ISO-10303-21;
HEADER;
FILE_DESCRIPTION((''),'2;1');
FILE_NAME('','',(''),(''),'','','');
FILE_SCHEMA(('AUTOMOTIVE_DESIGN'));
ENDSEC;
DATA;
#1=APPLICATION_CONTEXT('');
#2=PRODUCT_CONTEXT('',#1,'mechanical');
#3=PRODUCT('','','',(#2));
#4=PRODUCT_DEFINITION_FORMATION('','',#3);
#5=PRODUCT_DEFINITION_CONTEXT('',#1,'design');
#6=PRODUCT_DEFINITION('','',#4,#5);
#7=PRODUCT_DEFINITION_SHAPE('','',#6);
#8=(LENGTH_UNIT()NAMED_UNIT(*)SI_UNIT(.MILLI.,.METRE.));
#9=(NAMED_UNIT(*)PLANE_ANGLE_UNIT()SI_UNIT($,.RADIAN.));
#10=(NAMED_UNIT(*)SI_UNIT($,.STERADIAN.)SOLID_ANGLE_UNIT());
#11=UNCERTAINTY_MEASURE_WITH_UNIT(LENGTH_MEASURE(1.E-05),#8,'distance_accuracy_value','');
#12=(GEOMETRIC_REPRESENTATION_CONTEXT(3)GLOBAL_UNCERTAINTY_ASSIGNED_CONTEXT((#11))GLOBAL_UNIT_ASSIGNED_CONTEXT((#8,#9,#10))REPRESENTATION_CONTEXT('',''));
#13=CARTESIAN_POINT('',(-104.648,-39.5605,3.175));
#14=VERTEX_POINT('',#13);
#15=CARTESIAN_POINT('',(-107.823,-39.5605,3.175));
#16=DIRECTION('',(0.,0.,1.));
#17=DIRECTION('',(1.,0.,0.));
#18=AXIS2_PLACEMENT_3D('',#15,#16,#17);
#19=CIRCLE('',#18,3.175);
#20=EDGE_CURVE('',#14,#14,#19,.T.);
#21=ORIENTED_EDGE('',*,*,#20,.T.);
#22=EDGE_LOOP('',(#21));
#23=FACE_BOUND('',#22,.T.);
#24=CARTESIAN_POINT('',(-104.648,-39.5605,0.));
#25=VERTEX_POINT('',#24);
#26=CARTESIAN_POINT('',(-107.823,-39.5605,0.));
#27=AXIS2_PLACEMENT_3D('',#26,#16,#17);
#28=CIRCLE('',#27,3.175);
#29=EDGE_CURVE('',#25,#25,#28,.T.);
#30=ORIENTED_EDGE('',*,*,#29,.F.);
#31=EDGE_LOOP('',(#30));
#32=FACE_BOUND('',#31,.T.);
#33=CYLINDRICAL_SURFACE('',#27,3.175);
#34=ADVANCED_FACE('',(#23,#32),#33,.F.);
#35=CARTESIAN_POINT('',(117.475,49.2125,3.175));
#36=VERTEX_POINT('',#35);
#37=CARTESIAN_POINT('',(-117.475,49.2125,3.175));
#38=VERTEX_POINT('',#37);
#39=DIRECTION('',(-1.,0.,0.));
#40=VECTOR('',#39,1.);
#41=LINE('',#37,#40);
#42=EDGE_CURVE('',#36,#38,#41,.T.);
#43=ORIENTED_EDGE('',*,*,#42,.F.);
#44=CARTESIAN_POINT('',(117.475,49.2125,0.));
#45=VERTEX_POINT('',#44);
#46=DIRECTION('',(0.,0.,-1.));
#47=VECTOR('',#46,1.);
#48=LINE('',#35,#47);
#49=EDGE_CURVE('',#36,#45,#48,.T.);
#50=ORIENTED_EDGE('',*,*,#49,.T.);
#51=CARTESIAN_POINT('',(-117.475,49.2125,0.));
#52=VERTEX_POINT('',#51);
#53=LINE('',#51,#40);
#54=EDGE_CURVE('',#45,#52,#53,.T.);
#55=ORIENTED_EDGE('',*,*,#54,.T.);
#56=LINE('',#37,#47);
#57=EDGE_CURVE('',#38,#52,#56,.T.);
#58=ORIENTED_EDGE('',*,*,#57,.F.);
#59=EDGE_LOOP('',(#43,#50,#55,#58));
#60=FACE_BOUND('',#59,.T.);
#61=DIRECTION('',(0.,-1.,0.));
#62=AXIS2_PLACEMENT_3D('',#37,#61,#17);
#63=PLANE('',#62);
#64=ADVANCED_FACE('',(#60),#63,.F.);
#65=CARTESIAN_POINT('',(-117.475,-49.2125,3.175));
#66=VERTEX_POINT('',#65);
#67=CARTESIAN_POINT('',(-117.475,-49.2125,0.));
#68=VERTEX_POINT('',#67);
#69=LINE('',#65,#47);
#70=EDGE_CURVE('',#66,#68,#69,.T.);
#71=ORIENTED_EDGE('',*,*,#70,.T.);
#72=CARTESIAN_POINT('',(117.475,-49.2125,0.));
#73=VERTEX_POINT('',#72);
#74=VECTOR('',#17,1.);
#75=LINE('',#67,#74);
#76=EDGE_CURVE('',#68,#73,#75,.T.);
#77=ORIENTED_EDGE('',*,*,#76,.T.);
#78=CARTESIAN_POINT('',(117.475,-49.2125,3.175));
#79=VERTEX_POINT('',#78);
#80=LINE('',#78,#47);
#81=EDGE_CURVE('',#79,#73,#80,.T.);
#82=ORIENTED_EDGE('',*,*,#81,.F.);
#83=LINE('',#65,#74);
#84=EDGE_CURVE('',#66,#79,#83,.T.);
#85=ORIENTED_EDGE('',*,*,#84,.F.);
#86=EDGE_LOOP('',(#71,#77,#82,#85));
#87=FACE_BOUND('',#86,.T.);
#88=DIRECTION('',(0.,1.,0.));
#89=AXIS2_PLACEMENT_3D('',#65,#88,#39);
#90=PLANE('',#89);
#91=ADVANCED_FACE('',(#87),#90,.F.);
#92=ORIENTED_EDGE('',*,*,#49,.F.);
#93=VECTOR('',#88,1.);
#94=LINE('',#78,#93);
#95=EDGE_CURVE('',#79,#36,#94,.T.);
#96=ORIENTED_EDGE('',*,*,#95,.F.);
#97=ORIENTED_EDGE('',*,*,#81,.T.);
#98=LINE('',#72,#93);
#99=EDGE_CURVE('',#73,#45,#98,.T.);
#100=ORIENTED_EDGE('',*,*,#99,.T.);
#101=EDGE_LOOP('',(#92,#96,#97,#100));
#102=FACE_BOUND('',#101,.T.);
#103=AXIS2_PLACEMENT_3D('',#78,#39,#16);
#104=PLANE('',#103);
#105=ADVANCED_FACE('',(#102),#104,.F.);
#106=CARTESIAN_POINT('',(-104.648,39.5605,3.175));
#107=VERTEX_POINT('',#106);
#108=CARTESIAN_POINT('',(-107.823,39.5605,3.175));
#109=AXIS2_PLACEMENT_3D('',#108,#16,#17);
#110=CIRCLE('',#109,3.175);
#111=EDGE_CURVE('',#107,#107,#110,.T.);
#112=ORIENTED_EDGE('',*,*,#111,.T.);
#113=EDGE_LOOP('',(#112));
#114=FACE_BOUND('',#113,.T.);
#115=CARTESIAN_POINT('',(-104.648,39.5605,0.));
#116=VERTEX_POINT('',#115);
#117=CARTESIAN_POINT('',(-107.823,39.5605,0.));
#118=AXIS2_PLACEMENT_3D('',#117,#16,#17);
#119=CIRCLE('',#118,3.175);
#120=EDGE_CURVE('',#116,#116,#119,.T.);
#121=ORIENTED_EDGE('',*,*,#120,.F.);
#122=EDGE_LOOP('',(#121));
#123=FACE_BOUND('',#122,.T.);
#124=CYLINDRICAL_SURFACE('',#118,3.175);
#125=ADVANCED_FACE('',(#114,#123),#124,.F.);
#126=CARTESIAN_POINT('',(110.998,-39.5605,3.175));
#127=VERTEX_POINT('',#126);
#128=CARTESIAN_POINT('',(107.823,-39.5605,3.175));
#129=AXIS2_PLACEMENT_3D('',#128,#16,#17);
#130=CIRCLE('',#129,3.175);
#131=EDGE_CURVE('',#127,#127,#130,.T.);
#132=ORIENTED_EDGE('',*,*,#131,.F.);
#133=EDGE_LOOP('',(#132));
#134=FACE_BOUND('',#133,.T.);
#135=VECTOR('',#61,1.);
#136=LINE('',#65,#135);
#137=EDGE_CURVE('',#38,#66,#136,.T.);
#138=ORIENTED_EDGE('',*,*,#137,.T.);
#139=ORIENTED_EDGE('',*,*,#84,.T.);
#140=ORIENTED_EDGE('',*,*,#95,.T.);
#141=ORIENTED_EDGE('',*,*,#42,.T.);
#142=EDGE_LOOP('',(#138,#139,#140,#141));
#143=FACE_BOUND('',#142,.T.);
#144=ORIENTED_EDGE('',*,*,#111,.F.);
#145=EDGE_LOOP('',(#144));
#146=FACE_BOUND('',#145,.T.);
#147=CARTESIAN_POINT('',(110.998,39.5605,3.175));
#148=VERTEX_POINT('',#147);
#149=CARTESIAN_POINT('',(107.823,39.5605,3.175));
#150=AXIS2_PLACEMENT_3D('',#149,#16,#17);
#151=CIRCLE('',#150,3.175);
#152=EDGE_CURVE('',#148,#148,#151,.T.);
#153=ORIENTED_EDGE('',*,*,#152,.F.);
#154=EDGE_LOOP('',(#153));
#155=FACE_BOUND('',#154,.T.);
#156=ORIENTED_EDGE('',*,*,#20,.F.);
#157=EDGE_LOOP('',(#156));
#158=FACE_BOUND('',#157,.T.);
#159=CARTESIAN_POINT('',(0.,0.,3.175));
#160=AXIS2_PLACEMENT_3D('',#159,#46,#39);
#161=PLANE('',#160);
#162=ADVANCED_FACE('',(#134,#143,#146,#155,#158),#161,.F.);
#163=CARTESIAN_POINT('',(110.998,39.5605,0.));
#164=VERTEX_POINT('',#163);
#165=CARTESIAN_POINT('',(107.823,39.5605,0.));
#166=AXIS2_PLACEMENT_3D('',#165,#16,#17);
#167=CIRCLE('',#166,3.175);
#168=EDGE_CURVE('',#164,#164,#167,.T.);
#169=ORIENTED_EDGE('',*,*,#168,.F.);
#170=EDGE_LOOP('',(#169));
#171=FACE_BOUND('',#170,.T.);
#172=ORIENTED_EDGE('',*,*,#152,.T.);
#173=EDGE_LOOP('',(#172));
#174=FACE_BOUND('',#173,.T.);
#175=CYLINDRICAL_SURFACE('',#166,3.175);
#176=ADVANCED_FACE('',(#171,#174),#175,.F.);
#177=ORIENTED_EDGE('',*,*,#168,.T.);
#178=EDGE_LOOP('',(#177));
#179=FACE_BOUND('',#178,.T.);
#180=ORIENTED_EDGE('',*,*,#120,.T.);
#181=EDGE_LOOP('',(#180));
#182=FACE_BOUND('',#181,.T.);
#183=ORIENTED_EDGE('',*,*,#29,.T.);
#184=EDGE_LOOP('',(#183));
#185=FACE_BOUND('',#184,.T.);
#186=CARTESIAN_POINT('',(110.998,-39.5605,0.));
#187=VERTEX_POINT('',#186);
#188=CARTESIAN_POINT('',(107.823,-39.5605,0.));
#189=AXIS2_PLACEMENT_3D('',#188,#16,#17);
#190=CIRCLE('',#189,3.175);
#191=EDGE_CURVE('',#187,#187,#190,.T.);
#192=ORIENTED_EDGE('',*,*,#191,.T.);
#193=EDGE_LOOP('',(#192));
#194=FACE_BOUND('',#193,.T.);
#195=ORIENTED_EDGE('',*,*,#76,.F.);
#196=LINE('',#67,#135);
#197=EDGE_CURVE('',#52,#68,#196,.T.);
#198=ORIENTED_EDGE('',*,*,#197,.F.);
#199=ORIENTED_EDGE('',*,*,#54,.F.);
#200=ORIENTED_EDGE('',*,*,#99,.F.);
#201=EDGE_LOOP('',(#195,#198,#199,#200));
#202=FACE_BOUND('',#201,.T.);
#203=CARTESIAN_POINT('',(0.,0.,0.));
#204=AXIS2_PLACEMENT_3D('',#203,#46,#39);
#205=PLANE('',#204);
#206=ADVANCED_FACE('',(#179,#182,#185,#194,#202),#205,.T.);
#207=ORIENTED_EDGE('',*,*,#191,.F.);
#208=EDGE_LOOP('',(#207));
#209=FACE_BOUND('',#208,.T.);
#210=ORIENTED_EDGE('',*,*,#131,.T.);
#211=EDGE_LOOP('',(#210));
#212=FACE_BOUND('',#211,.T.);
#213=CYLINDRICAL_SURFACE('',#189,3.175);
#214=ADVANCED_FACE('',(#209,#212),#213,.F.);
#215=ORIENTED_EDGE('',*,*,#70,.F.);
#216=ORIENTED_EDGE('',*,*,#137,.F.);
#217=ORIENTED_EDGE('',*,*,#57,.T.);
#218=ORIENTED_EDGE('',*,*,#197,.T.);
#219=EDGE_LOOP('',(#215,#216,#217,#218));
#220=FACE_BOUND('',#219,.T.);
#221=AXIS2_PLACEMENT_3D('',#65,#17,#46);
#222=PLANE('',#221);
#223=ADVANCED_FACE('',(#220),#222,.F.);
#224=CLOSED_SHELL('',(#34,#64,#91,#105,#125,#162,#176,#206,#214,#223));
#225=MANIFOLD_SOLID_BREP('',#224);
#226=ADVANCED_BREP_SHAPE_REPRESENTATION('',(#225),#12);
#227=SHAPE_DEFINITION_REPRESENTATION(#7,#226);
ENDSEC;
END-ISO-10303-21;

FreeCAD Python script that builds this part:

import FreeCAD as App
import Part
import Sketcher
from FreeCAD import Vector
Q = App.Units.Quantity


def add_polygon(sketch, points):
    """Adds a closed chain of lines whose ends are joined by coincident constraints."""
    first, n = sketch.GeometryCount, len(points)
    for a, b in zip(points, points[1:] + points[:1]):
        sketch.addGeometry(Part.LineSegment(App.Vector(*a, 0), App.Vector(*b, 0)), False)
    for i in range(n):
        sketch.addConstraint(Sketcher.Constraint("Coincident", first + i, 2, first + (i + 1) % n, 1))

doc = App.newDocument("Part")
body = doc.addObject("PartDesign::Body", "Body")

sketch1 = body.newObject("Sketcher::SketchObject", "Sketch")
sketch1.AttachmentSupport = (doc.getObject("XY_Plane"), [""])
sketch1.MapMode = "FlatFace"
add_polygon(sketch1, [(-117.475, 49.2125), (-117.475, -49.2125), (117.475, -49.2125), (117.475, 49.2125)])
sketch1.addConstraint([
    Sketcher.Constraint("Vertical", 0),
    Sketcher.Constraint("Horizontal", 1),
    Sketcher.Constraint("Vertical", 2),
    Sketcher.Constraint("Horizontal", 3),
    Sketcher.Constraint("Symmetric", 0, 2, 2, 2, -1, 1),
    Sketcher.Constraint("DistanceX", 1, 1, 1, 2, Q("9.25 in")),
    Sketcher.Constraint("DistanceY", 0, 2, 0, 1, Q("3.875 in")),
])
pad1 = body.newObject("PartDesign::Pad", "Pad")
pad1.Profile = sketch1
pad1.Length = Q("0.125 in")

sketch2 = body.newObject("Sketcher::SketchObject", "Sketch001")
sketch2.AttachmentSupport = (doc.getObject("XY_Plane"), [""])
sketch2.MapMode = "FlatFace"
sketch2.AttachmentOffset = App.Placement(Vector(0, 0, 0.125 * 25.4), App.Rotation())
sketch2.addGeometry([
    Part.Circle(Vector(-107.823, 39.5605, 0), Vector(0, 0, 1), 3.175),
    Part.Circle(Vector(-107.823, -39.5605, 0), Vector(0, 0, 1), 3.175),
    Part.Circle(Vector(107.823, 39.5605, 0), Vector(0, 0, 1), 3.175),
    Part.Circle(Vector(107.823, -39.5605, 0), Vector(0, 0, 1), 3.175),
], False)
sketch2.addConstraint([
    Sketcher.Constraint("Equal", 0, 1),
    Sketcher.Constraint("Equal", 1, 2),
    Sketcher.Constraint("Equal", 2, 3),
    Sketcher.Constraint("Symmetric", 1, 3, 2, 3, -1, 1),
    Sketcher.Constraint("Symmetric", 0, 3, 3, 3, -1, 1),
    Sketcher.Constraint("Symmetric", 0, 3, 2, 3, -2),
    Sketcher.Constraint("Diameter", 0, Q("0.25 in")),
    Sketcher.Constraint("DistanceX", 0, 3, 2, 3, Q("8.49 in")),
    Sketcher.Constraint("DistanceY", 1, 3, 0, 3, Q("3.115 in")),
])
pocket1 = body.newObject("PartDesign::Pocket", "Pocket")
pocket1.Profile = sketch2
pocket1.Type = "ThroughAll"

doc.recompute()
